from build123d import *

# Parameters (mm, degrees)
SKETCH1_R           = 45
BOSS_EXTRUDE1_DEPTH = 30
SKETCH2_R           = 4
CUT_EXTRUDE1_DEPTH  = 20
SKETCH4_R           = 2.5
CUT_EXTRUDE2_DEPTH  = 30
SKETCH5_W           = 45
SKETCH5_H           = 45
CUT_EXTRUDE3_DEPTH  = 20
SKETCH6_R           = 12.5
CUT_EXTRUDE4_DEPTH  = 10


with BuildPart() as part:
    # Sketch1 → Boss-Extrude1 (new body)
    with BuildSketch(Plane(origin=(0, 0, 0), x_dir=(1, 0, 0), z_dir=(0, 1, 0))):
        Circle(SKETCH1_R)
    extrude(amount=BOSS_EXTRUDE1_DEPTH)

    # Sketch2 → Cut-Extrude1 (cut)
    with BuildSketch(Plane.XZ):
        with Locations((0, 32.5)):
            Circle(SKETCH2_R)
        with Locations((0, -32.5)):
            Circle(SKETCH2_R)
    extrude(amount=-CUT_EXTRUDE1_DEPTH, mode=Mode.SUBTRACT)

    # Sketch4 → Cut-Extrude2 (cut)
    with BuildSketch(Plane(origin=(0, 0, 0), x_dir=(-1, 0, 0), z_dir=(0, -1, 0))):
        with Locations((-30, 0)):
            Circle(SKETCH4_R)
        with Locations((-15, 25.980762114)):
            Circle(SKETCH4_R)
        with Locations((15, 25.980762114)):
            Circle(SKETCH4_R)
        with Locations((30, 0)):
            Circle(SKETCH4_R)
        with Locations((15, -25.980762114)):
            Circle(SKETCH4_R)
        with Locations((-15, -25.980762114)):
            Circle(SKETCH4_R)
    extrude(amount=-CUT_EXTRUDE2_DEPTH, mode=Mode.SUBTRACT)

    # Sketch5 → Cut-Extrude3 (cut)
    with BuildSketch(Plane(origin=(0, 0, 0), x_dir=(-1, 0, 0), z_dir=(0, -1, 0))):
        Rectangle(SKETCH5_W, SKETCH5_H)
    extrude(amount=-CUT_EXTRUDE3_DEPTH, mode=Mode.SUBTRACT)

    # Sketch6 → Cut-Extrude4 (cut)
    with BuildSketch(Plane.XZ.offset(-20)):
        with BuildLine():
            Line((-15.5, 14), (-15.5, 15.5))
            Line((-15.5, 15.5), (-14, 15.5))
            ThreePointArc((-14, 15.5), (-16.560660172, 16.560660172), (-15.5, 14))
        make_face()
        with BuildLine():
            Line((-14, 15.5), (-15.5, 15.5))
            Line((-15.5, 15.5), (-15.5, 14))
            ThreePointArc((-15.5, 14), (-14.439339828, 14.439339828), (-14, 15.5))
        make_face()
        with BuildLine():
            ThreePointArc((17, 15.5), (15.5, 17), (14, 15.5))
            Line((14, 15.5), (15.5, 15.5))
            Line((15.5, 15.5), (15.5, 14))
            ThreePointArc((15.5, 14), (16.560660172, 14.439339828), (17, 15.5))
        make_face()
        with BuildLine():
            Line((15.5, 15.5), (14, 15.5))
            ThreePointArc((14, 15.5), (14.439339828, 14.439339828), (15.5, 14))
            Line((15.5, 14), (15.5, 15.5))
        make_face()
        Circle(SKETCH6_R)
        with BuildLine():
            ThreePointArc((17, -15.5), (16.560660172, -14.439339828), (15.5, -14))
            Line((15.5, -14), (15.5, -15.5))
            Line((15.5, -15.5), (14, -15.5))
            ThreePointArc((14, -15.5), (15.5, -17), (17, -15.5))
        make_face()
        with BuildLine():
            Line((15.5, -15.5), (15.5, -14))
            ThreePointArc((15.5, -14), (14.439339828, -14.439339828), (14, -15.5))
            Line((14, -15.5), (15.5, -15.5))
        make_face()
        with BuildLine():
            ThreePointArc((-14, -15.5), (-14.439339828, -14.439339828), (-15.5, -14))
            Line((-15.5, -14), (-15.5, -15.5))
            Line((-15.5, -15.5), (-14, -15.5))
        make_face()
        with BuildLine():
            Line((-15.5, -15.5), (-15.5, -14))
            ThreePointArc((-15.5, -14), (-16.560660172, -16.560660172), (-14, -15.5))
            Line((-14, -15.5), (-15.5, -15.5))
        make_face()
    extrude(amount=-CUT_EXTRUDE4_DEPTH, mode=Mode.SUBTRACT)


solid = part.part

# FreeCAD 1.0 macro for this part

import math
import FreeCAD as App
import Part
import Sketcher


def add_polygon(sketch, points):
    """Adds a closed chain of lines whose ends are joined by coincident constraints."""
    first, n = sketch.GeometryCount, len(points)
    for a, b in zip(points, points[1:] + points[:1]):
        sketch.addGeometry(Part.LineSegment(App.Vector(*a, 0), App.Vector(*b, 0)), False)
    for i in range(n):
        sketch.addConstraint(Sketcher.Constraint("Coincident", first + i, 2, first + (i + 1) % n, 1))

doc = App.newDocument("Part")
body = doc.addObject("PartDesign::Body", "Body")

# Sketch on XZ plane
sketch1 = body.newObject("Sketcher::SketchObject", "Sketch")
sketch1.AttachmentSupport = (doc.getObject("XZ_Plane"), [""])
sketch1.MapMode = "FlatFace"
sketch1.addGeometry(Part.Circle(App.Vector(0, 0, 0), App.Vector(0, 0, 1), 45), False)
sketch1.addConstraint([
    Sketcher.Constraint("Coincident", 0, 3, -1, 1),
    Sketcher.Constraint("Diameter", 0, 90.0),
])
pad1 = body.newObject("PartDesign::Pad", "Pad")
pad1.Profile = sketch1
pad1.Length = 30
pad1.Reversed = True

# Sketch on XZ plane
sketch2 = body.newObject("Sketcher::SketchObject", "Sketch001")
sketch2.AttachmentSupport = (doc.getObject("XZ_Plane"), [""])
sketch2.MapMode = "FlatFace"
sketch2.addGeometry([
    Part.Circle(App.Vector(0, 32.5, 0), App.Vector(0, 0, 1), 4),
    Part.Circle(App.Vector(0, -32.5, 0), App.Vector(0, 0, 1), 4),
], False)
sketch2.addConstraint([
    Sketcher.Constraint("Equal", 0, 1),
    Sketcher.Constraint("Symmetric", 0, 3, 1, 3, -1, 1),
    Sketcher.Constraint("PointOnObject", 0, 3, -2),
    Sketcher.Constraint("Diameter", 0, 8.0),
    Sketcher.Constraint("DistanceY", 1, 3, 0, 3, 65.0),
])
pocket1 = body.newObject("PartDesign::Pocket", "Pocket")
pocket1.Profile = sketch2
pocket1.Length = 20

# Sketch on XZ plane
sketch3 = body.newObject("Sketcher::SketchObject", "Sketch002")
sketch3.AttachmentSupport = (doc.getObject("XZ_Plane"), [""])
sketch3.MapMode = "FlatFace"
sketch3.addGeometry([
    Part.Circle(App.Vector(30, 0, 0), App.Vector(0, 0, 1), 2.5),  # 0
    Part.Circle(App.Vector(15, -26, 0), App.Vector(0, 0, 1), 2.5),  # 1
    Part.Circle(App.Vector(-15, -26, 0), App.Vector(0, 0, 1), 2.5),  # 2
    Part.Circle(App.Vector(-30, 0, 0), App.Vector(0, 0, 1), 2.5),  # 3
    Part.Circle(App.Vector(-15, 26, 0), App.Vector(0, 0, 1), 2.5),  # 4
    Part.Circle(App.Vector(15, 26, 0), App.Vector(0, 0, 1), 2.5),  # 5
], False)
sketch3.addConstraint([
    Sketcher.Constraint("Equal", 0, 1),
    Sketcher.Constraint("Equal", 1, 2),
    Sketcher.Constraint("Equal", 2, 3),
    Sketcher.Constraint("Equal", 3, 4),
    Sketcher.Constraint("Equal", 4, 5),
    Sketcher.Constraint("Symmetric", 0, 3, 3, 3, -1, 1),
    Sketcher.Constraint("Symmetric", 1, 3, 4, 3, -1, 1),
    Sketcher.Constraint("Symmetric", 2, 3, 5, 3, -1, 1),
    Sketcher.Constraint("Symmetric", 1, 3, 2, 3, -2),
    Sketcher.Constraint("PointOnObject", 0, 3, -1),
    Sketcher.Constraint("Diameter", 0, 5.0),
    Sketcher.Constraint("DistanceX", -1, 1, 0, 3, 30.0),
    Sketcher.Constraint("DistanceX", -1, 1, 1, 3, 15.0),
    Sketcher.Constraint("DistanceY", 1, 3, -1, 1, 25.980762),
])
pocket2 = body.newObject("PartDesign::Pocket", "Pocket001")
pocket2.Profile = sketch3
pocket2.Length = 30

# Sketch on XZ plane
sketch4 = body.newObject("Sketcher::SketchObject", "Sketch003")
sketch4.AttachmentSupport = (doc.getObject("XZ_Plane"), [""])
sketch4.MapMode = "FlatFace"
add_polygon(sketch4, [(22, -22), (22, 22), (-22, 22), (-22, -22)])  # lines 0-3
sketch4.addConstraint([
    Sketcher.Constraint("Vertical", 0),
    Sketcher.Constraint("Horizontal", 1),
    Sketcher.Constraint("Vertical", 2),
    Sketcher.Constraint("Horizontal", 3),
    Sketcher.Constraint("Symmetric", 0, 2, 2, 2, -1, 1),
    Sketcher.Constraint("Equal", 3, 0),
    Sketcher.Constraint("DistanceX", 1, 2, 1, 1, 45.0),
])
pocket3 = body.newObject("PartDesign::Pocket", "Pocket002")
pocket3.Profile = sketch4
pocket3.Length = 20

# Sketch on XZ plane
sketch5 = body.newObject("Sketcher::SketchObject", "Sketch004")
sketch5.AttachmentSupport = (doc.getObject("XZ_Plane"), [""])
sketch5.MapMode = "FlatFace"
sketch5.AttachmentOffset = App.Placement(App.Vector(0, 0, -20), App.Rotation())
sketch5.addGeometry([
    Part.ArcOfCircle(Part.Circle(App.Vector(-15.5, 15.5, 0), App.Vector(0, 0, 1), 1.5), math.radians(0), math.radians(270)),  # 0
    Part.ArcOfCircle(Part.Circle(App.Vector(-15.5, 15.5, 0), App.Vector(0, 0, 1), 1.5), math.radians(-90), math.radians(0)),  # 1
    Part.ArcOfCircle(Part.Circle(App.Vector(15.5, 15.5, 0), App.Vector(0, 0, 1), 1.5), math.radians(0), math.radians(180)),  # 2
    Part.ArcOfCircle(Part.Circle(App.Vector(15.5, 15.5, 0), App.Vector(0, 0, 1), 1.5), math.radians(180), math.radians(270)),  # 3
    Part.ArcOfCircle(Part.Circle(App.Vector(15.5, 15.5, 0), App.Vector(0, 0, 1), 1.5), math.radians(-90), math.radians(0)),  # 4
    Part.Circle(App.Vector(0, 0, 0), App.Vector(0, 0, 1), 12.5),  # 5
    Part.ArcOfCircle(Part.Circle(App.Vector(15.5, -15.5, 0), App.Vector(0, 0, 1), 1.5), math.radians(0), math.radians(90)),  # 6
    Part.ArcOfCircle(Part.Circle(App.Vector(15.5, -15.5, 0), App.Vector(0, 0, 1), 1.5), math.radians(90), math.radians(180)),  # 7
    Part.ArcOfCircle(Part.Circle(App.Vector(15.5, -15.5, 0), App.Vector(0, 0, 1), 1.5), math.radians(180), math.radians(360)),  # 8
    Part.ArcOfCircle(Part.Circle(App.Vector(-15.5, -15.5, 0), App.Vector(0, 0, 1), 1.5), math.radians(0), math.radians(90)),  # 9
    Part.ArcOfCircle(Part.Circle(App.Vector(-15.5, -15.5, 0), App.Vector(0, 0, 1), 1.5), math.radians(90), math.radians(360)),  # 10
], False)
sketch5.addConstraint([
    Sketcher.Constraint("Tangent", 0, 1, 1, 2),
    Sketcher.Constraint("Coincident", 1, 1, 0, 2),
    Sketcher.Constraint("Tangent", 2, 2, 3, 1),
    Sketcher.Constraint("Tangent", 3, 2, 4, 1),
    Sketcher.Constraint("Tangent", 4, 2, 2, 1),
    Sketcher.Constraint("Tangent", 6, 2, 7, 1),
    Sketcher.Constraint("Tangent", 7, 2, 8, 1),
    Sketcher.Constraint("Tangent", 8, 2, 6, 1),
    Sketcher.Constraint("Tangent", 9, 1, 10, 2),
    Sketcher.Constraint("Coincident", 10, 1, 9, 2),
    Sketcher.Constraint("Coincident", 5, 3, -1, 1),
    Sketcher.Constraint("Equal", 1, 2),
    Sketcher.Constraint("Equal", 4, 6),
    Sketcher.Constraint("Equal", 8, 9),
    Sketcher.Constraint("Symmetric", 0, 3, 6, 3, -1, 1),
    Sketcher.Constraint("Symmetric", 2, 3, 9, 3, -1, 1),
    Sketcher.Constraint("Symmetric", 0, 3, 2, 3, -2),
    Sketcher.Constraint("Horizontal", 4, 3, 0, 1),
    Sketcher.Constraint("Horizontal", 0, 1, 2, 2),
    Sketcher.Constraint("Horizontal", 2, 2, 4, 2),
    Sketcher.Constraint("Horizontal", 10, 3, 7, 2),
    Sketcher.Constraint("Horizontal", 7, 2, 8, 2),
    Sketcher.Constraint("Horizontal", 8, 2, 9, 1),
    Sketcher.Constraint("Vertical", 10, 3, 1, 1),
    Sketcher.Constraint("Vertical", 8, 3, 3, 2),
    Sketcher.Constraint("Vertical", 3, 2, 6, 2),
    Sketcher.Constraint("Vertical", 1, 1, 10, 1),
    Sketcher.Constraint("Diameter", 5, 25.0),
    Sketcher.Constraint("Radius", 0, 1.5),
    Sketcher.Constraint("DistanceX", 0, 1, -1, 1, 14.0),
    Sketcher.Constraint("DistanceY", -1, 1, 1, 1, 14.0),
])
pocket4 = body.newObject("PartDesign::Pocket", "Pocket003")
pocket4.Profile = sketch5
pocket4.Length = 10

doc.recompute()
